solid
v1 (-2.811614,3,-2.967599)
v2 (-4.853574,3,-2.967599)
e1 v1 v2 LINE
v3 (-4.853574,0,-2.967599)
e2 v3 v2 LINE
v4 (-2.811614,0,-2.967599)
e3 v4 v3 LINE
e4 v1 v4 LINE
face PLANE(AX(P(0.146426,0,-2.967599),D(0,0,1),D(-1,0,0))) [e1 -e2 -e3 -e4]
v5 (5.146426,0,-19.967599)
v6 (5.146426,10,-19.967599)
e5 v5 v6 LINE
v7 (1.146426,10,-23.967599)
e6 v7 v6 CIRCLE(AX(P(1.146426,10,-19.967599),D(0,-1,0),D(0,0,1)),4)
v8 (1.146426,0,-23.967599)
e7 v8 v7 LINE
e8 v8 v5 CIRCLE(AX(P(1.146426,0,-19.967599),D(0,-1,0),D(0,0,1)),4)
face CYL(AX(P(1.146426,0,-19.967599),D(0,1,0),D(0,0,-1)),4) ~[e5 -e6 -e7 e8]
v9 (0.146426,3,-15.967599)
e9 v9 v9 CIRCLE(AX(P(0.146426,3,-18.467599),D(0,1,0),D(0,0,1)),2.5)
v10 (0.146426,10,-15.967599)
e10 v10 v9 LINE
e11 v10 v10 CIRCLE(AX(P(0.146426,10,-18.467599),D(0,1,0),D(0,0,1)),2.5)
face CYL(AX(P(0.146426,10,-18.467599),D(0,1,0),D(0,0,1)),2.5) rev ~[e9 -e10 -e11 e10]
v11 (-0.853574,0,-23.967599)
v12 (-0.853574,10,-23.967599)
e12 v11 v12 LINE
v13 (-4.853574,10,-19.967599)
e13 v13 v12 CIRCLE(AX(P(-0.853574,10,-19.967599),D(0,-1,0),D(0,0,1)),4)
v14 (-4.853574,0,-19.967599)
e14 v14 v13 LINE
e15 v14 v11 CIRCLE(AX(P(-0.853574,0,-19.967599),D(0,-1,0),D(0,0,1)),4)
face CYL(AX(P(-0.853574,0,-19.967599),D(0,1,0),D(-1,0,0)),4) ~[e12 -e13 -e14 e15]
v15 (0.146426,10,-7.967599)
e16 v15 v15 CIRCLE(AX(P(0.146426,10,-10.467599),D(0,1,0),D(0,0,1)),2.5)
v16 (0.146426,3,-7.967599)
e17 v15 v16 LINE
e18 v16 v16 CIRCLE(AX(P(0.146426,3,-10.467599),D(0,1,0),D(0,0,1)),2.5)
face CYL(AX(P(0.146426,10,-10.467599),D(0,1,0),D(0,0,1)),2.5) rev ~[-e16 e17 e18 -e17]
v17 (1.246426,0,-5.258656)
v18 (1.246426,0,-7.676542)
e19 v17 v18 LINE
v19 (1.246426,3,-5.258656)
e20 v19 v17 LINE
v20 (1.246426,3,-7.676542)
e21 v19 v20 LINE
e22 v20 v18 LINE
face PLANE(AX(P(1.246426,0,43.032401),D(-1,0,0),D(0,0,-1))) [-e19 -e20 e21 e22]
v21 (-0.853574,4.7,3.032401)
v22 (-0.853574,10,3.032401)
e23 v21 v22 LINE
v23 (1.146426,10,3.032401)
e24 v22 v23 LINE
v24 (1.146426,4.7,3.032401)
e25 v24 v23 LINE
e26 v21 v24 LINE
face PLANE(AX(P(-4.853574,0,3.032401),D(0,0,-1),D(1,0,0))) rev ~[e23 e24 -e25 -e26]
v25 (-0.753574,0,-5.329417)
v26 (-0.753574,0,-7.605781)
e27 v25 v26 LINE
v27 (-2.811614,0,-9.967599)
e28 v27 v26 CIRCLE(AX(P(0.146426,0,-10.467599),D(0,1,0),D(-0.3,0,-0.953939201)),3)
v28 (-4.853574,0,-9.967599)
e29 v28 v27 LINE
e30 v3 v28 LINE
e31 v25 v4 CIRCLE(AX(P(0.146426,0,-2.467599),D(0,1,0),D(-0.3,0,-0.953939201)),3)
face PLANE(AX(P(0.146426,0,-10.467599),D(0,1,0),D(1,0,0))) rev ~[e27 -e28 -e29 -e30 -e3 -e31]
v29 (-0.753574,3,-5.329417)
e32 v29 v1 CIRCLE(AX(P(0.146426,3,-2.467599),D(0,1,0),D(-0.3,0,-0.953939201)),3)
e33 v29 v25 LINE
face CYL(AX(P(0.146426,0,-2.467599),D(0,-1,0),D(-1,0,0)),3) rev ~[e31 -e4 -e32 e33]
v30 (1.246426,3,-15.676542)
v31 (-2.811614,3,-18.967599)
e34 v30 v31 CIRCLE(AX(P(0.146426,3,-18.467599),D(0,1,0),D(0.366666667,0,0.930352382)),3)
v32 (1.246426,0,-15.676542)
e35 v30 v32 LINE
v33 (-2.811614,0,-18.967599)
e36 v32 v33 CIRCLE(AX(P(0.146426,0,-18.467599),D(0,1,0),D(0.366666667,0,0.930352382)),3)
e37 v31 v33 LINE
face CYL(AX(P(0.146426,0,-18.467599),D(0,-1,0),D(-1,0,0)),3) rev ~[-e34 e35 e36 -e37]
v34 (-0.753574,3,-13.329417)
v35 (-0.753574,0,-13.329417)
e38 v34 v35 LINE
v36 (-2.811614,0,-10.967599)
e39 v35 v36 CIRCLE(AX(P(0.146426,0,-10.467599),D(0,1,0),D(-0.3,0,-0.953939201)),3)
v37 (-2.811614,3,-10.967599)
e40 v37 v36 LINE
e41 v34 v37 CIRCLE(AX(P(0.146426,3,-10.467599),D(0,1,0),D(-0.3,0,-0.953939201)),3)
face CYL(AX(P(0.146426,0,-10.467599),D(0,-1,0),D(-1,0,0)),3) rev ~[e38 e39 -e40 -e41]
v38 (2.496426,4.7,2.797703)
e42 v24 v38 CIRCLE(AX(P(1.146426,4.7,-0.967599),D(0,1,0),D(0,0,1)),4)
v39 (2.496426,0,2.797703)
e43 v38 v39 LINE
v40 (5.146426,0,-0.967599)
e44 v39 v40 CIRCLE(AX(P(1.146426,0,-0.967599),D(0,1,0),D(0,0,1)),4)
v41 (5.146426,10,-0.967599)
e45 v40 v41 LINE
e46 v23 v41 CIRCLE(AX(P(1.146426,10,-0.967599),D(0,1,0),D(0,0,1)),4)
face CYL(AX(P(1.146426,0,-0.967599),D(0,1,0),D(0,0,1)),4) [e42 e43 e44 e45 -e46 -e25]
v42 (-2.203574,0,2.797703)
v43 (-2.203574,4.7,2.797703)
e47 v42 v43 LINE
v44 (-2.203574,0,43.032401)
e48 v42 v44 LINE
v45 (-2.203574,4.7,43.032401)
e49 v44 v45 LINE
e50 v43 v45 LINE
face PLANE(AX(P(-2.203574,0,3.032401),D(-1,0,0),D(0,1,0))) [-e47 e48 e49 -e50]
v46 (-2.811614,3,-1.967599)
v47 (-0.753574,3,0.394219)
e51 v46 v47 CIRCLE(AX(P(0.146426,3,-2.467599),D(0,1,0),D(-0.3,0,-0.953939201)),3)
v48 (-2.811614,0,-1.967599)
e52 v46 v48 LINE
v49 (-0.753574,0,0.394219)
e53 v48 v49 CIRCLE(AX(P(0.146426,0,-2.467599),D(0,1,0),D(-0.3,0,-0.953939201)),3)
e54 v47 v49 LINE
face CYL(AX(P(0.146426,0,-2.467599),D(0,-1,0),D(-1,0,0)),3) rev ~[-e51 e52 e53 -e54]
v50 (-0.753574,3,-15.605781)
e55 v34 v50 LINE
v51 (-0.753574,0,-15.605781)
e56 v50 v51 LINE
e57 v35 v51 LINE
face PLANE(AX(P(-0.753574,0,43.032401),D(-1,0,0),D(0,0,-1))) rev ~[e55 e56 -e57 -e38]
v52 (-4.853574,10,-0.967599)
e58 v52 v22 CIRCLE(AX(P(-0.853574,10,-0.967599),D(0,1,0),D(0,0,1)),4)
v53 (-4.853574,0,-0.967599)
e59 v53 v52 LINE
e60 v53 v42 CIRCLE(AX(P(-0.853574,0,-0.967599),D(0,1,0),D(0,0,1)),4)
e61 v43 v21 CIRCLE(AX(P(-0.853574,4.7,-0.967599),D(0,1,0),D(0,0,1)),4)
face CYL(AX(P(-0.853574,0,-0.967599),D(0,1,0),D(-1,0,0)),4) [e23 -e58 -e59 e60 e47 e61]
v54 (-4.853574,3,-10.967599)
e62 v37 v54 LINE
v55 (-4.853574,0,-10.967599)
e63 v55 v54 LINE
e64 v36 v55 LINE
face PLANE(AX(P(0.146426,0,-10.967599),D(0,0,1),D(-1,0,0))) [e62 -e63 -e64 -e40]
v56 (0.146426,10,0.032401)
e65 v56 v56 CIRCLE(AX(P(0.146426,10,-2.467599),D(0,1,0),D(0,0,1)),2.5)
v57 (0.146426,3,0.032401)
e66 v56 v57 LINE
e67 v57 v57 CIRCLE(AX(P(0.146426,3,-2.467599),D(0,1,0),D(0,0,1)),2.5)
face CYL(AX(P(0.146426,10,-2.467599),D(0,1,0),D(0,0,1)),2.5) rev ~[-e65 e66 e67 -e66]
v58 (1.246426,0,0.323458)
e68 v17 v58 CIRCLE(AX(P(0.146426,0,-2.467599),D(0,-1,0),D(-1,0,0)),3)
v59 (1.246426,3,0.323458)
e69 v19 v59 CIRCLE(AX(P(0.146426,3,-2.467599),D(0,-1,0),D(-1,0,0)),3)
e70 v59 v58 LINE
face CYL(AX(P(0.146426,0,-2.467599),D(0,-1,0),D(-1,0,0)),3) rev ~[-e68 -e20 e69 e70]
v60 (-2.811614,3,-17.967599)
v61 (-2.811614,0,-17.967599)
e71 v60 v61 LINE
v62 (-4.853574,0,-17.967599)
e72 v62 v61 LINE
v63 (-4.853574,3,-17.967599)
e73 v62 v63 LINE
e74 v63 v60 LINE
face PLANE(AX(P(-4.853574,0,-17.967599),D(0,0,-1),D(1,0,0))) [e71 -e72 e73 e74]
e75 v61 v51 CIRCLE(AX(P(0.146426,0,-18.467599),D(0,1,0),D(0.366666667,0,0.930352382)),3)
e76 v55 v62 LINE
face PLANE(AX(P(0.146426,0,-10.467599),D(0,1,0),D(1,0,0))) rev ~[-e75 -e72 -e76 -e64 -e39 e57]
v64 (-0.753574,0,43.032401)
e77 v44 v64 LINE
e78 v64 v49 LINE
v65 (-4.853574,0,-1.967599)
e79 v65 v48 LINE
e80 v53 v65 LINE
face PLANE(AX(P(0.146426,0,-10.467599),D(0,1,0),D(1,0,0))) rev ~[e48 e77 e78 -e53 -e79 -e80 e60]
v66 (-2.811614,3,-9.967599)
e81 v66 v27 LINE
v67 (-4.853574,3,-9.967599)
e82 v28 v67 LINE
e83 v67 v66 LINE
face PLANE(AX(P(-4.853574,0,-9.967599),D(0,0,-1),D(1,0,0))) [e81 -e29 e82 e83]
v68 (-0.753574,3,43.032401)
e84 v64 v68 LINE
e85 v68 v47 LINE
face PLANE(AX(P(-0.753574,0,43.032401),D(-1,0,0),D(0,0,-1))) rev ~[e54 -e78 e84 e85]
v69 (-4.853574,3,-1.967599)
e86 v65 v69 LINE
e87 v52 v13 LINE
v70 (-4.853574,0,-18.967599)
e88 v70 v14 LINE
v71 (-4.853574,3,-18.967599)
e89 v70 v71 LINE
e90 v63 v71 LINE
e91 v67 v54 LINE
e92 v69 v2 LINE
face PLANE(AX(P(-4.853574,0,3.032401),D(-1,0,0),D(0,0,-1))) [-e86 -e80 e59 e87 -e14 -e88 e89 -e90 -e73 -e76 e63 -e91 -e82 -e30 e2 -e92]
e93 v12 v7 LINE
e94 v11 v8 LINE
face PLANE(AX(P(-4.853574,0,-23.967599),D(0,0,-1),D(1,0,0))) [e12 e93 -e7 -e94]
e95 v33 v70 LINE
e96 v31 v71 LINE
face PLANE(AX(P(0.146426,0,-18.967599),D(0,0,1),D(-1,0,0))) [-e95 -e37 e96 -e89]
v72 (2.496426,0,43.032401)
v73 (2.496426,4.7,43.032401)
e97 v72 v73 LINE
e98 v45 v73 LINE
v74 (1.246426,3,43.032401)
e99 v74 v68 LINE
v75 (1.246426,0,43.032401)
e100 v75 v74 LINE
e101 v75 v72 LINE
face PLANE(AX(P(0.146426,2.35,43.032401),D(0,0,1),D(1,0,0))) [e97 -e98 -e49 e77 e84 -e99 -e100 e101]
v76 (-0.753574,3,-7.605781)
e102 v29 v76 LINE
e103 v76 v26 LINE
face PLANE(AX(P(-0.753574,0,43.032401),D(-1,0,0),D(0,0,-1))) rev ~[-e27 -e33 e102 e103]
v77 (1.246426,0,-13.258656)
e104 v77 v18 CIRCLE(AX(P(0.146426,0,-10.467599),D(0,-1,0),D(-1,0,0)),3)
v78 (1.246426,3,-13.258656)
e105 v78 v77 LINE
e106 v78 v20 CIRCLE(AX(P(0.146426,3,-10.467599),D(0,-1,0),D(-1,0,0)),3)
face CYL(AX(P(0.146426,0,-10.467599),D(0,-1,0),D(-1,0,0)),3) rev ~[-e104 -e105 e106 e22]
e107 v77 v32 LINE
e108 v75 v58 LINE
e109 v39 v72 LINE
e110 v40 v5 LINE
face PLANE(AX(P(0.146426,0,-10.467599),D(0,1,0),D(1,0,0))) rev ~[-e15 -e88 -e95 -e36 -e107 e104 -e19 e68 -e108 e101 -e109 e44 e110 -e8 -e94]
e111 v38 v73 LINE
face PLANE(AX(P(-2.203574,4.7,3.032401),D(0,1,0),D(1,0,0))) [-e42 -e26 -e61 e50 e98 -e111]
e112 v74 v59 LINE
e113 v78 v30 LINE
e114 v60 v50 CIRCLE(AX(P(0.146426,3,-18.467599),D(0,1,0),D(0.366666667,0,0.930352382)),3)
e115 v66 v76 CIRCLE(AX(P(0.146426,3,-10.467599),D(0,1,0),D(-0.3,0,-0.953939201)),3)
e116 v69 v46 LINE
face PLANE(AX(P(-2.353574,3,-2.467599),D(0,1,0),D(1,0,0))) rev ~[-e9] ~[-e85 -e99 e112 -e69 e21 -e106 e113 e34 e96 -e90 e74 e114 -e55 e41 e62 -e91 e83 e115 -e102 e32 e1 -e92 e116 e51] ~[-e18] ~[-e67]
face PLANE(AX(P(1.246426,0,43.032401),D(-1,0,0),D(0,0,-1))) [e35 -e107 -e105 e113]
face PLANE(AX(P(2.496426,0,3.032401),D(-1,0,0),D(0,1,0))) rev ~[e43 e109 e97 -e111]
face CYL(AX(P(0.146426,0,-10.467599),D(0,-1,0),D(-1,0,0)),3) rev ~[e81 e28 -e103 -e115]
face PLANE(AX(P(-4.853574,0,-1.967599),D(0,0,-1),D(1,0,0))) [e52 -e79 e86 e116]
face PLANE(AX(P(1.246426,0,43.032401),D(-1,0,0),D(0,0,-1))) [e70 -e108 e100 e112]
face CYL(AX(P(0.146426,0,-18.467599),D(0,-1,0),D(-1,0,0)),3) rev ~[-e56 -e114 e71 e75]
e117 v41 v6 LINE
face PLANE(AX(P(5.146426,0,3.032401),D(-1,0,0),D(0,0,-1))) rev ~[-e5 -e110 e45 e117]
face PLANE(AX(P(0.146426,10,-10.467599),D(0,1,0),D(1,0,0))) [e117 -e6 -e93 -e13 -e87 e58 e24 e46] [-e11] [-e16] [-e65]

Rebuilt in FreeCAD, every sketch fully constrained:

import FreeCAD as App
import Part
import Sketcher
from FreeCAD import Vector


def edges_at(feature, points):
    """Names of the edges that pass closest to the given points."""
    edges = feature.Shape.Edges
    near = lambda p: min(range(len(edges)), key=lambda i: edges[i].distToShape(Part.Vertex(*p))[0])
    return sorted({f"Edge{near(p) + 1}" for p in points})


def add_polygon(sketch, points):
    """Adds a closed chain of lines whose ends are joined by coincident constraints."""
    first, n = sketch.GeometryCount, len(points)
    for a, b in zip(points, points[1:] + points[:1]):
        sketch.addGeometry(Part.LineSegment(App.Vector(*a, 0), App.Vector(*b, 0)), False)
    for i in range(n):
        sketch.addConstraint(Sketcher.Constraint("Coincident", first + i, 2, first + (i + 1) % n, 1))

doc = App.newDocument("Part")
params = doc.addObject("Spreadsheet::Sheet", "Params")
for row, (alias, value) in enumerate([
    ("sketch1_width", "10 mm"),
    ("sketch1_height", "27 mm"),
    ("pad1_length", "10 mm"),
    ("sketch2_diameter", "5 mm"),
    ("pocket1_length", "10 mm"),
    ("sketch3_width", "4.7 mm"),
    ("pad2_length", "40 mm"),
    ("sketch4_width", "2 mm"),
    ("sketch4_height", "62 mm"),
    ("pocket2_length", "3 mm"),
    ("fillet_radius", "4 mm"),
    ("sketch5_diameter", "6 mm"),
    ("pocket3_length", "3 mm"),
    ("sketch6_width", "5 mm"),
    ("sketch6_height", "1 mm"),
    ("pocket4_length", "3 mm"),
], start=1):
    params.set(f"A{row}", alias)
    params.set(f"B{row}", "=" + value)
    params.setAlias(f"B{row}", alias)

body = doc.addObject("PartDesign::Body", "Body")

# Sketch on XZ plane
sketch1 = doc.addObject("Sketcher::SketchObject", "Sketch")
body.addObject(sketch1)
sketch1.AttachmentSupport = (doc.XZ_Plane, [""])
sketch1.MapMode = "FlatFace"
add_polygon(sketch1, [(-5, -24), (-5, 3), (5, 3), (5, -24)])  # lines 0-3
sketch1.addConstraint([
    Sketcher.Constraint("Vertical", 0),
    Sketcher.Constraint("Horizontal", 1),
    Sketcher.Constraint("Vertical", 2),
    Sketcher.Constraint("Horizontal", 3),
    Sketcher.Constraint("DistanceX", 1, 1, 1, 2, 10.0),
    Sketcher.Constraint("DistanceY", 0, 1, 0, 2, 27.0),
    Sketcher.Constraint("DistanceY", -1, 1, 0, 2, 3.032401),
    Sketcher.Constraint("DistanceX", 0, 2, -1, 1, 4.853574),
])
sketch1.setExpression("Constraints[8]", "Params.sketch1_width")
sketch1.setExpression("Constraints[9]", "Params.sketch1_height")
pad1 = doc.addObject("PartDesign::Pad", "Pad")
body.addObject(pad1)
pad1.Profile = sketch1
pad1.setExpression("Length", "Params.pad1_length")
pad1.Reversed = True

# Sketch on XZ plane
sketch2 = doc.addObject("Sketcher::SketchObject", "Sketch001")
body.addObject(sketch2)
sketch2.AttachmentSupport = (doc.XZ_Plane, [""])
sketch2.MapMode = "FlatFace"
sketch2.AttachmentOffset = App.Placement(Vector(0, 0, -10), App.Rotation())
sketch2.addGeometry([
    Part.Circle(Vector(0.1, -18.5, 0), Vector(0, 0, 1), 2.5),
    Part.Circle(Vector(0.1, -10.5, 0), Vector(0, 0, 1), 2.5),
    Part.Circle(Vector(0.1, -2.5, 0), Vector(0, 0, 1), 2.5),
], False)
sketch2.addConstraint([
    Sketcher.Constraint("Equal", 0, 1),
    Sketcher.Constraint("Equal", 1, 2),
    Sketcher.Constraint("Vertical", 0, 3, 1, 3),
    Sketcher.Constraint("Vertical", 1, 3, 2, 3),
    Sketcher.Constraint("Diameter", 0, 5.0),
    Sketcher.Constraint("DistanceY", 0, 3, 1, 3, 8.0),
    Sketcher.Constraint("DistanceY", 1, 3, 2, 3, 8.0),
    Sketcher.Constraint("DistanceY", 0, 3, -1, 1, 18.467599),
    Sketcher.Constraint("DistanceX", -1, 1, 0, 3, 0.146426),
])
sketch2.setExpression("Constraints[4]", "Params.sketch2_diameter")
pocket1 = doc.addObject("PartDesign::Pocket", "Pocket")
body.addObject(pocket1)
pocket1.Profile = sketch2
pocket1.setExpression("Length", "Params.pocket1_length")
pocket1.Reversed = True

# Sketch on XY plane
sketch3 = doc.addObject("Sketcher::SketchObject", "Sketch002")
body.addObject(sketch3)
sketch3.AttachmentSupport = (doc.XY_Plane, [""])
sketch3.MapMode = "FlatFace"
sketch3.AttachmentOffset = App.Placement(Vector(0, 0, 3.032401), App.Rotation())
add_polygon(sketch3, [(-2.2, 4.7), (-2.2, 0), (2.5, 0), (2.5, 4.7)])  # lines 0-3
sketch3.addConstraint([
    Sketcher.Constraint("Vertical", 0),
    Sketcher.Constraint("Horizontal", 1),
    Sketcher.Constraint("Vertical", 2),
    Sketcher.Constraint("Horizontal", 3),
    Sketcher.Constraint("PointOnObject", 0, 2, -1),
    Sketcher.Constraint("Equal", 3, 0),
    Sketcher.Constraint("DistanceX", 1, 1, 1, 2, 4.7),
    Sketcher.Constraint("DistanceX", 0, 2, -1, 1, 2.203574),
])
sketch3.setExpression("Constraints[10]", "Params.sketch3_width")
pad2 = doc.addObject("PartDesign::Pad", "Pad001")
body.addObject(pad2)
pad2.Profile = sketch3
pad2.setExpression("Length", "Params.pad2_length")

# Sketch on XZ plane
sketch4 = doc.addObject("Sketcher::SketchObject", "Sketch003")
body.addObject(sketch4)
sketch4.AttachmentSupport = (doc.XZ_Plane, [""])
sketch4.MapMode = "FlatFace"
add_polygon(sketch4, [(1.2, -19), (1.2, 43), (-0.8, 43), (-0.8, -19)])  # lines 0-3
sketch4.addConstraint([
    Sketcher.Constraint("Vertical", 0),
    Sketcher.Constraint("Horizontal", 1),
    Sketcher.Constraint("Vertical", 2),
    Sketcher.Constraint("Horizontal", 3),
    Sketcher.Constraint("DistanceX", 1, 2, 1, 1, 2.0),
    Sketcher.Constraint("DistanceY", 0, 1, 0, 2, 62.0),
    Sketcher.Constraint("DistanceY", -1, 1, 0, 2, 43.032401),
    Sketcher.Constraint("DistanceX", -1, 1, 0, 2, 1.246426),
])
sketch4.setExpression("Constraints[8]", "Params.sketch4_width")
sketch4.setExpression("Constraints[9]", "Params.sketch4_height")
pocket2 = doc.addObject("PartDesign::Pocket", "Pocket001")
body.addObject(pocket2)
pocket2.Profile = sketch4
pocket2.setExpression("Length", "Params.pocket2_length")
doc.recompute()

fillet = doc.addObject("PartDesign::Fillet", "Fillet")
body.addObject(fillet)
fillet.Base = (pocket2, edges_at(pocket2, [
    (5.146, 5, 3.032),
    (-4.854, 5, 3.032),
    (-4.854, 5, -23.968),
    (5.146, 5, -23.968),
]))
fillet.setExpression("Radius", "Params.fillet_radius")

# Sketch on XZ plane
sketch5 = doc.addObject("Sketcher::SketchObject", "Sketch004")
body.addObject(sketch5)
sketch5.AttachmentSupport = (doc.XZ_Plane, [""])
sketch5.MapMode = "FlatFace"
sketch5.addGeometry([
    Part.Circle(Vector(0.1, -18.5, 0), Vector(0, 0, 1), 3),
    Part.Circle(Vector(0.1, -10.5, 0), Vector(0, 0, 1), 3),
    Part.Circle(Vector(0.1, -2.5, 0), Vector(0, 0, 1), 3),
], False)
sketch5.addConstraint([
    Sketcher.Constraint("Equal", 0, 1),
    Sketcher.Constraint("Equal", 1, 2),
    Sketcher.Constraint("Vertical", 0, 3, 1, 3),
    Sketcher.Constraint("Vertical", 1, 3, 2, 3),
    Sketcher.Constraint("Diameter", 0, 6.0),
    Sketcher.Constraint("DistanceY", 0, 3, 1, 3, 8.0),
    Sketcher.Constraint("DistanceY", 1, 3, 2, 3, 8.0),
    Sketcher.Constraint("DistanceY", 0, 3, -1, 1, 18.467599),
    Sketcher.Constraint("DistanceX", -1, 1, 0, 3, 0.146426),
])
sketch5.setExpression("Constraints[4]", "Params.sketch5_diameter")
pocket3 = doc.addObject("PartDesign::Pocket", "Pocket002")
body.addObject(pocket3)
pocket3.Profile = sketch5
pocket3.setExpression("Length", "Params.pocket3_length")

# Sketch on XZ plane
sketch6 = doc.addObject("Sketcher::SketchObject", "Sketch005")
body.addObject(sketch6)
sketch6.AttachmentSupport = (doc.XZ_Plane, [""])
sketch6.MapMode = "FlatFace"
add_polygon(sketch6, [(0.1, -19), (0.1, -18), (-4.9, -18), (-4.9, -19)])  # lines 0-3
add_polygon(sketch6, [(0.1, -11), (0.1, -10), (-4.9, -10), (-4.9, -11)])  # lines 4-7
add_polygon(sketch6, [(0.1, -3), (0.1, -2), (-4.9, -2), (-4.9, -3)])  # lines 8-11
sketch6.addConstraint([
    Sketcher.Constraint("Vertical", 0),
    Sketcher.Constraint("Horizontal", 1),
    Sketcher.Constraint("Vertical", 2),
    Sketcher.Constraint("Horizontal", 3),
    Sketcher.Constraint("Vertical", 4),
    Sketcher.Constraint("Horizontal", 5),
    Sketcher.Constraint("Vertical", 6),
    Sketcher.Constraint("Horizontal", 7),
    Sketcher.Constraint("Vertical", 8),
    Sketcher.Constraint("Horizontal", 9),
    Sketcher.Constraint("Vertical", 10),
    Sketcher.Constraint("Horizontal", 11),
    Sketcher.Constraint("Vertical", 3, 2, 4, 2),
    Sketcher.Constraint("Vertical", 2, 2, 5, 2),
    Sketcher.Constraint("Vertical", 7, 2, 8, 2),
    Sketcher.Constraint("Vertical", 6, 2, 9, 2),
    Sketcher.Constraint("Equal", 2, 4),
    Sketcher.Constraint("Equal", 6, 8),
    Sketcher.Constraint("DistanceX", 1, 2, 1, 1, 5.0),
    Sketcher.Constraint("DistanceY", 0, 1, 0, 2, 1.0),
    Sketcher.Constraint("DistanceY", 0, 2, 4, 2, 8.0),
    Sketcher.Constraint("DistanceY", 4, 2, 8, 2, 8.0),
    Sketcher.Constraint("DistanceY", 0, 2, -1, 1, 17.967599),
    Sketcher.Constraint("DistanceX", -1, 1, 0, 2, 0.146426),
])
sketch6.setExpression("Constraints[30]", "Params.sketch6_width")
sketch6.setExpression("Constraints[31]", "Params.sketch6_height")
pocket4 = doc.addObject("PartDesign::Pocket", "Pocket003")
body.addObject(pocket4)
pocket4.Profile = sketch6
pocket4.setExpression("Length", "Params.pocket4_length")

doc.recompute()
